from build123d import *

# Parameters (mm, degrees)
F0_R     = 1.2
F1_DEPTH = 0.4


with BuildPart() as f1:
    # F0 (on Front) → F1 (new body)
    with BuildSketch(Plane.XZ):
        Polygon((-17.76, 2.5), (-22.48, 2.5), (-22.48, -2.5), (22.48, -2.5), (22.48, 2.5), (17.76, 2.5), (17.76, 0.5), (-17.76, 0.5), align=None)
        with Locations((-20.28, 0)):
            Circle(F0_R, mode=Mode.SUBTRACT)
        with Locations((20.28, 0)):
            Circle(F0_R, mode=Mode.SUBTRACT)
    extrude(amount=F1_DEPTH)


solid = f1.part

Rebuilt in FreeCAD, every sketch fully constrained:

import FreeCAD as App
import Part
import Sketcher

V = App.Vector
Q = App.Units.Quantity


def add_polygon(sketch, points):
    """Adds a closed chain of lines whose ends are joined by coincident constraints."""
    first, n = sketch.GeometryCount, len(points)
    for a, b in zip(points, points[1:] + points[:1]):
        sketch.addGeometry(Part.LineSegment(App.Vector(*a, 0), App.Vector(*b, 0)), False)
    for i in range(n):
        sketch.addConstraint(Sketcher.Constraint("Coincident", first + i, 2, first + (i + 1) % n, 1))

doc = App.newDocument("Part")
body = doc.addObject("PartDesign::Body", "Body")

# Sketch on XZ plane
sketch1 = doc.addObject("Sketcher::SketchObject", "Sketch")
body.addObject(sketch1)
sketch1.AttachmentSupport = (doc.XZ_Plane, [""])
sketch1.MapMode = "FlatFace"
add_polygon(sketch1, [(-17.8, 2.5), (-22.5, 2.5), (-22.5, -2.5), (22.5, -2.5), (22.5, 2.5), (17.8, 2.5), (17.8, 0.5), (-17.8, 0.5)])  # lines 0-7
sketch1.addGeometry(Part.Circle(V(-20.3, 0, 0), V(0, 0, 1), 1.2), False)  # 8
sketch1.addGeometry(Part.Circle(V(20.3, 0, 0), V(0, 0, 1), 1.2), False)  # 9
sketch1.addConstraint([
    Sketcher.Constraint("Horizontal", 0),
    Sketcher.Constraint("Vertical", 1),
    Sketcher.Constraint("Horizontal", 2),
    Sketcher.Constraint("Vertical", 3),
    Sketcher.Constraint("Horizontal", 4),
    Sketcher.Constraint("Vertical", 5),
    Sketcher.Constraint("Horizontal", 6),
    Sketcher.Constraint("Vertical", 7),
    Sketcher.Constraint("Equal", 8, 9),
    Sketcher.Constraint("Symmetric", 8, 3, 9, 3, -1, 1),
    Sketcher.Constraint("Symmetric", 0, 2, 2, 2, -1, 1),
    Sketcher.Constraint("Symmetric", 4, 2, 7, 2, -2),
    Sketcher.Constraint("PointOnObject", 8, 3, -1),
    Sketcher.Constraint("Diameter", 8, Q("2.4 mm")),
    Sketcher.Constraint("DistanceY", 1, 2, 1, 1, Q("5 mm")),
    Sketcher.Constraint("DistanceY", 5, 2, 5, 1, Q("2 mm")),
    Sketcher.Constraint("DistanceX", 0, 2, 0, 1, Q("4.72 mm")),
    Sketcher.Constraint("DistanceX", 2, 1, 2, 2, Q("44.96 mm")),
    Sketcher.Constraint("DistanceX", 0, 2, 8, 3, Q("2.2 mm")),
])
pad1 = doc.addObject("PartDesign::Pad", "Pad")
body.addObject(pad1)
pad1.Profile = sketch1
pad1.Length = 0.4

doc.recompute()
